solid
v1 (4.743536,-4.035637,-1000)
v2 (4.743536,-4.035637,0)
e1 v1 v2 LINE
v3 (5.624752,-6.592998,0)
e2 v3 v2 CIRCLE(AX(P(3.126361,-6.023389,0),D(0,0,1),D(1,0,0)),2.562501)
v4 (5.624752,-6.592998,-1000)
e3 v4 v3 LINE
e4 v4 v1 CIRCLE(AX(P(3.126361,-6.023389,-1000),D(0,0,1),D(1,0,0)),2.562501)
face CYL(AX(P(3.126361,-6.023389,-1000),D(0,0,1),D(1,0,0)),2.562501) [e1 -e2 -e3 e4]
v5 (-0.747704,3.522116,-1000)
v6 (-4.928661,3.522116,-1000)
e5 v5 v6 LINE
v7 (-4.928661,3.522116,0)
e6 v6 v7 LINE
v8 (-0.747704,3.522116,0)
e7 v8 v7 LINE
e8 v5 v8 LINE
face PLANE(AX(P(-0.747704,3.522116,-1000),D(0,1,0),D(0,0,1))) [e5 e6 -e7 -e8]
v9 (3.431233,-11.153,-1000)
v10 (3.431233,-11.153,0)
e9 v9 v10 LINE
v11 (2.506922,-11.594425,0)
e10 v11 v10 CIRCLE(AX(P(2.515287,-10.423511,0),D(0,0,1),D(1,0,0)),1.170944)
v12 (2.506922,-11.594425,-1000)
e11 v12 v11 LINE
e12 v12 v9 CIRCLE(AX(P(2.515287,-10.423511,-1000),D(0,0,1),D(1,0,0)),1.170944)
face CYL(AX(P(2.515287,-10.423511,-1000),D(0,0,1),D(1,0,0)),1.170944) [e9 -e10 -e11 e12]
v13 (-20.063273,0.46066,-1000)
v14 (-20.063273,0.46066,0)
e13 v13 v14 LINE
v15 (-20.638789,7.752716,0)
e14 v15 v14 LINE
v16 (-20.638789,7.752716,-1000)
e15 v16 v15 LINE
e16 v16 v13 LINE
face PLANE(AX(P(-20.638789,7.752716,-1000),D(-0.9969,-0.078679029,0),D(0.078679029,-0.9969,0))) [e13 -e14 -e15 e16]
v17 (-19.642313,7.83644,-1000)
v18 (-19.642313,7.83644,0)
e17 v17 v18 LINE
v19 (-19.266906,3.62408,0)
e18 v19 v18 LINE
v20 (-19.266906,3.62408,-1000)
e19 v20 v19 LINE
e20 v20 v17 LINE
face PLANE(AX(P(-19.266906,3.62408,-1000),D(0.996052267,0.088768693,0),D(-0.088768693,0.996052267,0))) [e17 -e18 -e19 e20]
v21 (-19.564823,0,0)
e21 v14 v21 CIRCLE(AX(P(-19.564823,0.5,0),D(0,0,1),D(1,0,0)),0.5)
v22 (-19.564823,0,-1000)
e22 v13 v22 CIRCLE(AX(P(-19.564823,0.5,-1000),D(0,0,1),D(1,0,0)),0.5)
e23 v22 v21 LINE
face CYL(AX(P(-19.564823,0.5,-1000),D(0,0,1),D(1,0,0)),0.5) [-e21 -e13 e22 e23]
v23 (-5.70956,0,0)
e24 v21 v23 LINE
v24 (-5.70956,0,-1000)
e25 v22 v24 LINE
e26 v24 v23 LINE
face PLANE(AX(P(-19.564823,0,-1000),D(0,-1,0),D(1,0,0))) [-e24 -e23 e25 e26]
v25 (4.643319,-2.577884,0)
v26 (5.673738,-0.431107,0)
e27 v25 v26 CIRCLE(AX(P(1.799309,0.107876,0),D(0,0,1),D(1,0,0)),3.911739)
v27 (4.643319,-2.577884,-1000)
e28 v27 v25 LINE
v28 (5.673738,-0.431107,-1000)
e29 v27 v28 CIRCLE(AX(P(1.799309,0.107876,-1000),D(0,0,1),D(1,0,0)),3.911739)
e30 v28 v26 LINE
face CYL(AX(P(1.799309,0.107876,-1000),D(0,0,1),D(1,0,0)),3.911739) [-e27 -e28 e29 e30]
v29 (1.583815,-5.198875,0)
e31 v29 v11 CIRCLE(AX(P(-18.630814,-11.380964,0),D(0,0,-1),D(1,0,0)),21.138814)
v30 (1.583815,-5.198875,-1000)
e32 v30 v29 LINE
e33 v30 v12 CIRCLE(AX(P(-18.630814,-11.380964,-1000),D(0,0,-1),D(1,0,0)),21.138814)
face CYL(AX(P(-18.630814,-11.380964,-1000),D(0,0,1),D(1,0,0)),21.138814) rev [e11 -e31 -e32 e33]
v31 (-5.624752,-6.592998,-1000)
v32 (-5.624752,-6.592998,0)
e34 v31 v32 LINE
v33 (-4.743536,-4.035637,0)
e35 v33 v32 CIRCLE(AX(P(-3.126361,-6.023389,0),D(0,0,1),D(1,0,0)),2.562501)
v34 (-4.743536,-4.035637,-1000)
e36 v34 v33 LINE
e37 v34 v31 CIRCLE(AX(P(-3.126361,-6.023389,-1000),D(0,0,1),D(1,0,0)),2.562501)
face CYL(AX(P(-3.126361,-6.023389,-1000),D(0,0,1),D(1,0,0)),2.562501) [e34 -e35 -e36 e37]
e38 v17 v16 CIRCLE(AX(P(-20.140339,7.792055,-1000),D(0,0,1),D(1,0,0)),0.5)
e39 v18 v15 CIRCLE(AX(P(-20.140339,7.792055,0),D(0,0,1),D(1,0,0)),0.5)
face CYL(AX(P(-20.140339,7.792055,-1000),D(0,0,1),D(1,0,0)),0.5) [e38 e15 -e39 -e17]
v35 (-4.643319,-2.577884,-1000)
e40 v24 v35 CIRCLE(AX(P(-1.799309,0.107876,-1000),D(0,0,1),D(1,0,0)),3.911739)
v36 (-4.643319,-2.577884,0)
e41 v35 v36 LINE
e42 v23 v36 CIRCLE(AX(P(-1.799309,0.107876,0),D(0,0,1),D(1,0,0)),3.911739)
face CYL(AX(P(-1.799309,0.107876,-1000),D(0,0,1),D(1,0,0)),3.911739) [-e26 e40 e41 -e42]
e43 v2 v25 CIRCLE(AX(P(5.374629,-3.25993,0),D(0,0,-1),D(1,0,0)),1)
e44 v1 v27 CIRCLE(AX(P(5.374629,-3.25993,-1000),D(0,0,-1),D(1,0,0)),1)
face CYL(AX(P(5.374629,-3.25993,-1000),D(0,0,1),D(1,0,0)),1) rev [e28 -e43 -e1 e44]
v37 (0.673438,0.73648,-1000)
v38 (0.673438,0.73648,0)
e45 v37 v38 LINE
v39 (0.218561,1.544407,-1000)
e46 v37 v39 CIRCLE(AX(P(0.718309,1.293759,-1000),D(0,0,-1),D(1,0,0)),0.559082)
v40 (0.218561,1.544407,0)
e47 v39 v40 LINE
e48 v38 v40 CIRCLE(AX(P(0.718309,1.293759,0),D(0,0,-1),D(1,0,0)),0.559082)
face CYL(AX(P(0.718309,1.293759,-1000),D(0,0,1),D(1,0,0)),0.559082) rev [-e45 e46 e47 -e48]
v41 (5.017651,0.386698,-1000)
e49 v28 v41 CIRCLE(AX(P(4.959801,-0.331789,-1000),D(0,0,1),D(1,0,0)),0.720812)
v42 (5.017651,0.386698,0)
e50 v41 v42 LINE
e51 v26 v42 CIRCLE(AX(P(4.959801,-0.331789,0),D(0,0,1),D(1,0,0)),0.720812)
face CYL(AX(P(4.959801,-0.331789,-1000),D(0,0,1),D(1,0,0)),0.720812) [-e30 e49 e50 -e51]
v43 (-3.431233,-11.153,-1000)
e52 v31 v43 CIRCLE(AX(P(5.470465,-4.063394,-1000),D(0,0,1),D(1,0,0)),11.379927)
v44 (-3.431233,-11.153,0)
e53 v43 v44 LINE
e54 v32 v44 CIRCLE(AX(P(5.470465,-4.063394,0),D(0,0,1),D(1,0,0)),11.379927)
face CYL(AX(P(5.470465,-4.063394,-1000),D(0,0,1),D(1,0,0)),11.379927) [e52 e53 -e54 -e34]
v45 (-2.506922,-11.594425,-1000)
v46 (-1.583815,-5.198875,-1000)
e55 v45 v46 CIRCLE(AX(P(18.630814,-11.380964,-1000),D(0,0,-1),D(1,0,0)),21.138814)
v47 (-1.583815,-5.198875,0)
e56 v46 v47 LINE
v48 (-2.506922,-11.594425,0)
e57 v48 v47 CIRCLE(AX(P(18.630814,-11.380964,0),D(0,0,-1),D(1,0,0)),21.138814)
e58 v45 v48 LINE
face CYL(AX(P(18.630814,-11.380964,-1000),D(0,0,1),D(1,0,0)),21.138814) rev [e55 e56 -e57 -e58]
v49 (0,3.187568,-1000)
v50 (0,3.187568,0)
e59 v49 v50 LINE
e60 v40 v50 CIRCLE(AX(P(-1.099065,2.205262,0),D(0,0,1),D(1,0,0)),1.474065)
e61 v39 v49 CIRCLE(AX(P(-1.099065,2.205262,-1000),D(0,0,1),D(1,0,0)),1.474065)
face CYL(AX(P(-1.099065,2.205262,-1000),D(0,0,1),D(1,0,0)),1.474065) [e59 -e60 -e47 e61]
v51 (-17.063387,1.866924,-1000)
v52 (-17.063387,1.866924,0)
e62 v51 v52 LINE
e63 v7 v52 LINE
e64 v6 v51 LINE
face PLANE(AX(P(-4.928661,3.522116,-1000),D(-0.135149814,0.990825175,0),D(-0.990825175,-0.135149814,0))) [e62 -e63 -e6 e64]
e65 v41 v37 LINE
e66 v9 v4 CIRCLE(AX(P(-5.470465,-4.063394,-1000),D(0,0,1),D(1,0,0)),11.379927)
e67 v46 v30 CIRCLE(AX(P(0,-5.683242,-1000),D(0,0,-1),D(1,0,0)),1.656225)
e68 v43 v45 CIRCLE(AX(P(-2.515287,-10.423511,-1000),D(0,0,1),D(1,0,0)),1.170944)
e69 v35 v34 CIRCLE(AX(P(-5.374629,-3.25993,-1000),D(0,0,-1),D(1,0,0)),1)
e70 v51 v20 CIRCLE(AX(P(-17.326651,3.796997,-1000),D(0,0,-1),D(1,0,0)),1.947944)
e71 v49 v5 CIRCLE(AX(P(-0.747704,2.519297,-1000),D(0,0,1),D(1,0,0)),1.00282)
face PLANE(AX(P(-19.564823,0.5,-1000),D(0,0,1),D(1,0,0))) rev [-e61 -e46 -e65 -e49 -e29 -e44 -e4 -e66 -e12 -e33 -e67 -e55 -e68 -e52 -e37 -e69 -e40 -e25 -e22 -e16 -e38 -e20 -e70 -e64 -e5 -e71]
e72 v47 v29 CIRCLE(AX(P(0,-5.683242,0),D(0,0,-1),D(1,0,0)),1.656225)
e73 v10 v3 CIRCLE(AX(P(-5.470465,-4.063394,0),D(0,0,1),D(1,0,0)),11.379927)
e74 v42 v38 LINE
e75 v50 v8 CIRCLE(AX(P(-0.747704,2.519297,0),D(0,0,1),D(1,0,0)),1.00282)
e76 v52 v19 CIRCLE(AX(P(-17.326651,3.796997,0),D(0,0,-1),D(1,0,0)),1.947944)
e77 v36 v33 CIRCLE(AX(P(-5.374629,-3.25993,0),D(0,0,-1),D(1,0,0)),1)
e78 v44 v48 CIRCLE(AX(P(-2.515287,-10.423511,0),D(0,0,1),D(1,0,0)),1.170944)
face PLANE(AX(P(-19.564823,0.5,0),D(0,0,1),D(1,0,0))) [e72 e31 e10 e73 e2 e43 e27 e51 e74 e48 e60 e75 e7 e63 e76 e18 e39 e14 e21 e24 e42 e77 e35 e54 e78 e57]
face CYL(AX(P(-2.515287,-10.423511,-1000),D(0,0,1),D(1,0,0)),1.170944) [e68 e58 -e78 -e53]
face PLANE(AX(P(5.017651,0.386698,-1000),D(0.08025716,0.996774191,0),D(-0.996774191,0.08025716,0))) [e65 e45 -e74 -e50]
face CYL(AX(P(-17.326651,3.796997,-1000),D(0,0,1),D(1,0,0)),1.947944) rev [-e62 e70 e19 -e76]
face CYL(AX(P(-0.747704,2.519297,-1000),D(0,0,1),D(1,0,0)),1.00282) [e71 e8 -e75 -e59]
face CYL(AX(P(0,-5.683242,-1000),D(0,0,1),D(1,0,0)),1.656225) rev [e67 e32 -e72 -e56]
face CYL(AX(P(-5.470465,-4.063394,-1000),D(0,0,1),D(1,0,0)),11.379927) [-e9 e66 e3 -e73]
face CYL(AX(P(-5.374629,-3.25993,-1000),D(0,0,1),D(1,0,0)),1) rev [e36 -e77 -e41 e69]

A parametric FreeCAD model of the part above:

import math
import FreeCAD as App
import Part
import Sketcher
from FreeCAD import Vector
Q = App.Units.Quantity

doc = App.newDocument("Part")
body = doc.addObject("PartDesign::Body", "Body")

# Sketch on XY plane
sketch1 = body.newObject("Sketcher::SketchObject", "Sketch")
sketch1.AttachmentSupport = (doc.getObject("XY_Plane"), [""])
sketch1.MapMode = "FlatFace"
sketch1.addGeometry([
    Part.LineSegment(Vector(-19.564823, 0, 0), Vector(-5.70956, 0, 0)),  # 0
    Part.ArcOfCircle(Part.Circle(Vector(-1.799309, 0.107876, 0), Vector(0, 0, 1), 3.911739), math.radians(-178.419726), math.radians(-136.639243)),  # 1
    Part.ArcOfCircle(Part.Circle(Vector(-5.374629, -3.25993, 0), Vector(0, 0, 1), 1), math.radians(-50.869225), math.radians(43.003725)),  # 2
    Part.ArcOfCircle(Part.Circle(Vector(-3.126361, -6.023389, 0), Vector(0, 0, 1), 2.562501), math.radians(129.130775), math.radians(192.843369)),  # 3
    Part.ArcOfCircle(Part.Circle(Vector(5.470465, -4.063394, 0), Vector(0, 0, 1), 11.379927), math.radians(-167.156631), math.radians(-141.465027)),  # 4
    Part.ArcOfCircle(Part.Circle(Vector(-2.515287, -10.423511, 0), Vector(0, 0, 1), 1.170944), math.radians(-141.465027), math.radians(-89.590691)),  # 5
    Part.ArcOfCircle(Part.Circle(Vector(18.630814, -11.380964, 0), Vector(0, 0, 1), 21.138814), math.radians(162.995188), math.radians(180.578586)),  # 6
    Part.ArcOfCircle(Part.Circle(Vector(0, -5.683242, 0), Vector(0, 0, 1), 1.656225), math.radians(17.004812), math.radians(162.995188)),  # 7
    Part.ArcOfCircle(Part.Circle(Vector(-18.630814, -11.380964, 0), Vector(0, 0, 1), 21.138814), math.radians(-0.578586), math.radians(17.004812)),  # 8
    Part.ArcOfCircle(Part.Circle(Vector(2.515287, -10.423511, 0), Vector(0, 0, 1), 1.170944), math.radians(-90.409309), math.radians(-38.534973)),  # 9
    Part.ArcOfCircle(Part.Circle(Vector(-5.470465, -4.063394, 0), Vector(0, 0, 1), 11.379927), math.radians(-38.534973), math.radians(-12.843369)),  # 10
    Part.ArcOfCircle(Part.Circle(Vector(3.126361, -6.023389, 0), Vector(0, 0, 1), 2.562501), math.radians(-12.843369), math.radians(50.869225)),  # 11
    Part.ArcOfCircle(Part.Circle(Vector(5.374629, -3.25993, 0), Vector(0, 0, 1), 1), math.radians(136.996275), math.radians(230.869225)),  # 12
    Part.ArcOfCircle(Part.Circle(Vector(1.799309, 0.107876, 0), Vector(0, 0, 1), 3.911739), math.radians(-43.360757), math.radians(-7.919753)),  # 13
    Part.ArcOfCircle(Part.Circle(Vector(4.959801, -0.331789, 0), Vector(0, 0, 1), 0.720812), math.radians(-7.919753), math.radians(85.396652)),  # 14
    Part.LineSegment(Vector(5.017651, 0.386698, 0), Vector(0.673438, 0.73648, 0)),  # 15
    Part.ArcOfCircle(Part.Circle(Vector(0.718309, 1.293759, 0), Vector(0, 0, 1), 0.559082), math.radians(153.363954), math.radians(265.396653)),  # 16
    Part.ArcOfCircle(Part.Circle(Vector(-1.099065, 2.205262, 0), Vector(0, 0, 1), 1.474065), math.radians(-26.636046), math.radians(41.789211)),  # 17
    Part.ArcOfCircle(Part.Circle(Vector(-0.747704, 2.519297, 0), Vector(0, 0, 1), 1.00282), math.radians(41.789211), math.radians(90)),  # 18
    Part.LineSegment(Vector(-0.747704, 3.522116, 0), Vector(-4.928661, 3.522116, 0)),  # 19
    Part.LineSegment(Vector(-4.928661, 3.522116, 0), Vector(-17.063387, 1.866924, 0)),  # 20
    Part.ArcOfCircle(Part.Circle(Vector(-17.326651, 3.796997, 0), Vector(0, 0, 1), 1.947944), math.radians(-174.907225), math.radians(-82.232717)),  # 21
    Part.LineSegment(Vector(-19.266906, 3.62408, 0), Vector(-19.642313, 7.83644, 0)),  # 22
    Part.ArcOfCircle(Part.Circle(Vector(-20.140339, 7.792055, 0), Vector(0, 0, 1), 0.5), math.radians(5.092775), math.radians(184.51264)),  # 23
    Part.LineSegment(Vector(-20.638789, 7.752716, 0), Vector(-20.063273, 0.46066, 0)),  # 24
    Part.ArcOfCircle(Part.Circle(Vector(-19.564823, 0.5, 0), Vector(0, 0, 1), 0.5), math.radians(-175.48736), math.radians(-90)),  # 25
], False)
sketch1.addConstraint([
    Sketcher.Constraint("Coincident", 0, 2, 1, 1),
    Sketcher.Constraint("Coincident", 1, 2, 2, 2),
    Sketcher.Constraint("Coincident", 2, 1, 3, 1),
    Sketcher.Constraint("Coincident", 3, 2, 4, 1),
    Sketcher.Constraint("Coincident", 4, 2, 5, 1),
    Sketcher.Constraint("Coincident", 5, 2, 6, 2),
    Sketcher.Constraint("Coincident", 6, 1, 7, 2),
    Sketcher.Constraint("Coincident", 7, 1, 8, 2),
    Sketcher.Constraint("Coincident", 8, 1, 9, 1),
    Sketcher.Constraint("Coincident", 9, 2, 10, 1),
    Sketcher.Constraint("Coincident", 10, 2, 11, 1),
    Sketcher.Constraint("Coincident", 11, 2, 12, 2),
    Sketcher.Constraint("Coincident", 12, 1, 13, 1),
    Sketcher.Constraint("Coincident", 13, 2, 14, 1),
    Sketcher.Constraint("Coincident", 14, 2, 15, 1),
    Sketcher.Constraint("Coincident", 15, 2, 16, 2),
    Sketcher.Constraint("Coincident", 16, 1, 17, 1),
    Sketcher.Constraint("Coincident", 17, 2, 18, 1),
    Sketcher.Constraint("Coincident", 18, 2, 19, 1),
    Sketcher.Constraint("Coincident", 19, 2, 20, 1),
    Sketcher.Constraint("Coincident", 20, 2, 21, 2),
    Sketcher.Constraint("Coincident", 21, 1, 22, 1),
    Sketcher.Constraint("Coincident", 22, 2, 23, 1),
    Sketcher.Constraint("Coincident", 23, 2, 24, 1),
    Sketcher.Constraint("Coincident", 24, 2, 25, 1),
    Sketcher.Constraint("Coincident", 25, 2, 0, 1),
    Sketcher.Constraint("Horizontal", 0),
    Sketcher.Constraint("Horizontal", 19),
    Sketcher.Constraint("PointOnObject", 7, 3, -2),
    Sketcher.Constraint("PointOnObject", 0, 2, -1),
    Sketcher.Constraint("PointOnObject", 17, 2, -2),
    Sketcher.Constraint("Radius", 2, Q("1 mm")),
    Sketcher.Constraint("Radius", 12, Q("1 mm")),
    Sketcher.Constraint("Radius", 23, Q("0.5 mm")),
    Sketcher.Constraint("Radius", 25, Q("0.5 mm")),
    Sketcher.Constraint("Radius", 3, Q("2.562501 mm")),
    Sketcher.Constraint("Radius", 11, Q("2.562501 mm")),
    Sketcher.Constraint("Radius", 1, Q("3.911739 mm")),
    Sketcher.Constraint("Radius", 13, Q("3.911739 mm")),
    Sketcher.Constraint("Radius", 16, Q("0.559082 mm")),
    Sketcher.Constraint("Radius", 18, Q("1.00282 mm")),
    Sketcher.Constraint("DistanceY", 4, 2, 3, 2, Q("4.560001 mm")),
    Sketcher.Constraint("DistanceY", 3, 2, -1, 1, Q("6.592998 mm")),
    Sketcher.Constraint("DistanceY", 9, 2, -1, 1, Q("11.153 mm")),
    Sketcher.Constraint("DistanceY", 10, 2, -1, 1, Q("6.592998 mm")),
    Sketcher.Constraint("Radius", 4, Q("11.379927 mm")),
    Sketcher.Constraint("Radius", 5, Q("1.170944 mm")),
    Sketcher.Constraint("Radius", 6, Q("21.138814 mm")),
    Sketcher.Constraint("Radius", 7, Q("1.656225 mm")),
    Sketcher.Constraint("Radius", 8, Q("21.138814 mm")),
    Sketcher.Constraint("Radius", 9, Q("1.170944 mm")),
    Sketcher.Constraint("Radius", 10, Q("11.379927 mm")),
    Sketcher.Constraint("Radius", 14, Q("0.720812 mm")),
    Sketcher.Constraint("Radius", 17, Q("1.474065 mm")),
    Sketcher.Constraint("Radius", 21, Q("1.947944 mm")),
    Sketcher.Constraint("DistanceX", 16, 3, 13, 3, Q("1.081 mm")),
    Sketcher.Constraint("DistanceY", 7, 3, 16, 3, Q("6.977 mm")),
    Sketcher.Constraint("DistanceX", -1, 1, 14, 3, Q("4.959801 mm")),
    Sketcher.Constraint("DistanceX", 5, 3, 6, 3, Q("21.146101 mm")),
    Sketcher.Constraint("DistanceY", 11, 3, 14, 3, Q("5.6916 mm")),
    Sketcher.Constraint("DistanceX", 11, 2, 13, 2, Q("0.930201 mm")),
    Sketcher.Constraint("DistanceX", 0, 2, 19, 2, Q("0.780899 mm")),
    Sketcher.Constraint("Distance", 15, Q("4.358271 mm")),
    Sketcher.Constraint("Distance", 20, Q("12.247091 mm")),
    Sketcher.Constraint("Distance", 24, Q("7.314731 mm")),
    Sketcher.Constraint("DistanceX", 0, 1, 0, 2, Q("13.855263 mm")),
    Sketcher.Constraint("DistanceX", 19, 2, 19, 1, Q("4.180957 mm")),
    Sketcher.Constraint("DistanceX", 1, 3, -1, 1, Q("1.799309 mm")),
    Sketcher.Constraint("DistanceX", 2, 3, -1, 1, Q("5.374629 mm")),
    Sketcher.Constraint("DistanceY", 2, 3, -1, 1, Q("3.25993 mm")),
    Sketcher.Constraint("DistanceX", 3, 3, -1, 1, Q("3.126361 mm")),
    Sketcher.Constraint("DistanceY", 5, 3, -1, 1, Q("10.423511 mm")),
    Sketcher.Constraint("DistanceY", 7, 3, -1, 1, Q("5.683242 mm")),
    Sketcher.Constraint("DistanceY", 9, 3, -1, 1, Q("10.423511 mm")),
    Sketcher.Constraint("DistanceX", -1, 1, 11, 3, Q("3.126361 mm")),
    Sketcher.Constraint("DistanceY", 11, 3, -1, 1, Q("6.023389 mm")),
    Sketcher.Constraint("DistanceX", -1, 1, 12, 3, Q("5.374629 mm")),
    Sketcher.Constraint("DistanceX", 21, 3, -1, 1, Q("17.326651 mm")),
    Sketcher.Constraint("DistanceX", 23, 3, -1, 1, Q("20.140339 mm")),
    Sketcher.Constraint("DistanceX", 1, 2, -1, 1, Q("4.643319 mm")),
    Sketcher.Constraint("DistanceX", -1, 1, 12, 1, Q("4.643319 mm")),
    Sketcher.Constraint("DistanceX", -1, 1, 14, 2, Q("5.017651 mm")),
    Sketcher.Constraint("DistanceX", -1, 1, 16, 1, Q("0.218561 mm")),
    Sketcher.Constraint("DistanceY", -1, 1, 21, 1, Q("3.62408 mm")),
    Sketcher.Constraint("DistanceY", -1, 1, 22, 2, Q("7.83644 mm")),
    Sketcher.Constraint("DistanceX", 23, 2, -1, 1, Q("20.638789 mm")),
    Sketcher.Constraint("DistanceY", -1, 1, 24, 2, Q("0.46066 mm")),
    Sketcher.Constraint("DistanceY", 4, 3, 1, 3, Q("4.17127 mm")),
    Sketcher.Constraint("DistanceY", 8, 3, 1, 3, Q("11.48884 mm")),
    Sketcher.Constraint("DistanceX", 9, 3, 4, 3, Q("2.955178 mm")),
    Sketcher.Constraint("DistanceY", 14, 3, 17, 3, Q("2.537051 mm")),
    Sketcher.Constraint("DistanceX", 17, 3, 18, 3, Q("0.351362 mm")),
    Sketcher.Constraint("DistanceY", 10, 3, 21, 3, Q("7.86039 mm")),
    Sketcher.Constraint("DistanceY", 21, 3, 23, 3, Q("3.995059 mm")),
    Sketcher.Constraint("DistanceX", 10, 3, 2, 1, Q("0.726929 mm")),
    Sketcher.Constraint("DistanceX", 2, 1, 6, 1, Q("3.159721 mm")),
    Sketcher.Constraint("DistanceX", 6, 1, 7, 1, Q("3.16763 mm")),
    Sketcher.Constraint("DistanceX", 11, 2, 4, 3, Q("0.726929 mm")),
])
pad1 = body.newObject("PartDesign::Pad", "Pad")
pad1.Profile = sketch1
pad1.Length = 1000
pad1.Reversed = True

doc.recompute()
